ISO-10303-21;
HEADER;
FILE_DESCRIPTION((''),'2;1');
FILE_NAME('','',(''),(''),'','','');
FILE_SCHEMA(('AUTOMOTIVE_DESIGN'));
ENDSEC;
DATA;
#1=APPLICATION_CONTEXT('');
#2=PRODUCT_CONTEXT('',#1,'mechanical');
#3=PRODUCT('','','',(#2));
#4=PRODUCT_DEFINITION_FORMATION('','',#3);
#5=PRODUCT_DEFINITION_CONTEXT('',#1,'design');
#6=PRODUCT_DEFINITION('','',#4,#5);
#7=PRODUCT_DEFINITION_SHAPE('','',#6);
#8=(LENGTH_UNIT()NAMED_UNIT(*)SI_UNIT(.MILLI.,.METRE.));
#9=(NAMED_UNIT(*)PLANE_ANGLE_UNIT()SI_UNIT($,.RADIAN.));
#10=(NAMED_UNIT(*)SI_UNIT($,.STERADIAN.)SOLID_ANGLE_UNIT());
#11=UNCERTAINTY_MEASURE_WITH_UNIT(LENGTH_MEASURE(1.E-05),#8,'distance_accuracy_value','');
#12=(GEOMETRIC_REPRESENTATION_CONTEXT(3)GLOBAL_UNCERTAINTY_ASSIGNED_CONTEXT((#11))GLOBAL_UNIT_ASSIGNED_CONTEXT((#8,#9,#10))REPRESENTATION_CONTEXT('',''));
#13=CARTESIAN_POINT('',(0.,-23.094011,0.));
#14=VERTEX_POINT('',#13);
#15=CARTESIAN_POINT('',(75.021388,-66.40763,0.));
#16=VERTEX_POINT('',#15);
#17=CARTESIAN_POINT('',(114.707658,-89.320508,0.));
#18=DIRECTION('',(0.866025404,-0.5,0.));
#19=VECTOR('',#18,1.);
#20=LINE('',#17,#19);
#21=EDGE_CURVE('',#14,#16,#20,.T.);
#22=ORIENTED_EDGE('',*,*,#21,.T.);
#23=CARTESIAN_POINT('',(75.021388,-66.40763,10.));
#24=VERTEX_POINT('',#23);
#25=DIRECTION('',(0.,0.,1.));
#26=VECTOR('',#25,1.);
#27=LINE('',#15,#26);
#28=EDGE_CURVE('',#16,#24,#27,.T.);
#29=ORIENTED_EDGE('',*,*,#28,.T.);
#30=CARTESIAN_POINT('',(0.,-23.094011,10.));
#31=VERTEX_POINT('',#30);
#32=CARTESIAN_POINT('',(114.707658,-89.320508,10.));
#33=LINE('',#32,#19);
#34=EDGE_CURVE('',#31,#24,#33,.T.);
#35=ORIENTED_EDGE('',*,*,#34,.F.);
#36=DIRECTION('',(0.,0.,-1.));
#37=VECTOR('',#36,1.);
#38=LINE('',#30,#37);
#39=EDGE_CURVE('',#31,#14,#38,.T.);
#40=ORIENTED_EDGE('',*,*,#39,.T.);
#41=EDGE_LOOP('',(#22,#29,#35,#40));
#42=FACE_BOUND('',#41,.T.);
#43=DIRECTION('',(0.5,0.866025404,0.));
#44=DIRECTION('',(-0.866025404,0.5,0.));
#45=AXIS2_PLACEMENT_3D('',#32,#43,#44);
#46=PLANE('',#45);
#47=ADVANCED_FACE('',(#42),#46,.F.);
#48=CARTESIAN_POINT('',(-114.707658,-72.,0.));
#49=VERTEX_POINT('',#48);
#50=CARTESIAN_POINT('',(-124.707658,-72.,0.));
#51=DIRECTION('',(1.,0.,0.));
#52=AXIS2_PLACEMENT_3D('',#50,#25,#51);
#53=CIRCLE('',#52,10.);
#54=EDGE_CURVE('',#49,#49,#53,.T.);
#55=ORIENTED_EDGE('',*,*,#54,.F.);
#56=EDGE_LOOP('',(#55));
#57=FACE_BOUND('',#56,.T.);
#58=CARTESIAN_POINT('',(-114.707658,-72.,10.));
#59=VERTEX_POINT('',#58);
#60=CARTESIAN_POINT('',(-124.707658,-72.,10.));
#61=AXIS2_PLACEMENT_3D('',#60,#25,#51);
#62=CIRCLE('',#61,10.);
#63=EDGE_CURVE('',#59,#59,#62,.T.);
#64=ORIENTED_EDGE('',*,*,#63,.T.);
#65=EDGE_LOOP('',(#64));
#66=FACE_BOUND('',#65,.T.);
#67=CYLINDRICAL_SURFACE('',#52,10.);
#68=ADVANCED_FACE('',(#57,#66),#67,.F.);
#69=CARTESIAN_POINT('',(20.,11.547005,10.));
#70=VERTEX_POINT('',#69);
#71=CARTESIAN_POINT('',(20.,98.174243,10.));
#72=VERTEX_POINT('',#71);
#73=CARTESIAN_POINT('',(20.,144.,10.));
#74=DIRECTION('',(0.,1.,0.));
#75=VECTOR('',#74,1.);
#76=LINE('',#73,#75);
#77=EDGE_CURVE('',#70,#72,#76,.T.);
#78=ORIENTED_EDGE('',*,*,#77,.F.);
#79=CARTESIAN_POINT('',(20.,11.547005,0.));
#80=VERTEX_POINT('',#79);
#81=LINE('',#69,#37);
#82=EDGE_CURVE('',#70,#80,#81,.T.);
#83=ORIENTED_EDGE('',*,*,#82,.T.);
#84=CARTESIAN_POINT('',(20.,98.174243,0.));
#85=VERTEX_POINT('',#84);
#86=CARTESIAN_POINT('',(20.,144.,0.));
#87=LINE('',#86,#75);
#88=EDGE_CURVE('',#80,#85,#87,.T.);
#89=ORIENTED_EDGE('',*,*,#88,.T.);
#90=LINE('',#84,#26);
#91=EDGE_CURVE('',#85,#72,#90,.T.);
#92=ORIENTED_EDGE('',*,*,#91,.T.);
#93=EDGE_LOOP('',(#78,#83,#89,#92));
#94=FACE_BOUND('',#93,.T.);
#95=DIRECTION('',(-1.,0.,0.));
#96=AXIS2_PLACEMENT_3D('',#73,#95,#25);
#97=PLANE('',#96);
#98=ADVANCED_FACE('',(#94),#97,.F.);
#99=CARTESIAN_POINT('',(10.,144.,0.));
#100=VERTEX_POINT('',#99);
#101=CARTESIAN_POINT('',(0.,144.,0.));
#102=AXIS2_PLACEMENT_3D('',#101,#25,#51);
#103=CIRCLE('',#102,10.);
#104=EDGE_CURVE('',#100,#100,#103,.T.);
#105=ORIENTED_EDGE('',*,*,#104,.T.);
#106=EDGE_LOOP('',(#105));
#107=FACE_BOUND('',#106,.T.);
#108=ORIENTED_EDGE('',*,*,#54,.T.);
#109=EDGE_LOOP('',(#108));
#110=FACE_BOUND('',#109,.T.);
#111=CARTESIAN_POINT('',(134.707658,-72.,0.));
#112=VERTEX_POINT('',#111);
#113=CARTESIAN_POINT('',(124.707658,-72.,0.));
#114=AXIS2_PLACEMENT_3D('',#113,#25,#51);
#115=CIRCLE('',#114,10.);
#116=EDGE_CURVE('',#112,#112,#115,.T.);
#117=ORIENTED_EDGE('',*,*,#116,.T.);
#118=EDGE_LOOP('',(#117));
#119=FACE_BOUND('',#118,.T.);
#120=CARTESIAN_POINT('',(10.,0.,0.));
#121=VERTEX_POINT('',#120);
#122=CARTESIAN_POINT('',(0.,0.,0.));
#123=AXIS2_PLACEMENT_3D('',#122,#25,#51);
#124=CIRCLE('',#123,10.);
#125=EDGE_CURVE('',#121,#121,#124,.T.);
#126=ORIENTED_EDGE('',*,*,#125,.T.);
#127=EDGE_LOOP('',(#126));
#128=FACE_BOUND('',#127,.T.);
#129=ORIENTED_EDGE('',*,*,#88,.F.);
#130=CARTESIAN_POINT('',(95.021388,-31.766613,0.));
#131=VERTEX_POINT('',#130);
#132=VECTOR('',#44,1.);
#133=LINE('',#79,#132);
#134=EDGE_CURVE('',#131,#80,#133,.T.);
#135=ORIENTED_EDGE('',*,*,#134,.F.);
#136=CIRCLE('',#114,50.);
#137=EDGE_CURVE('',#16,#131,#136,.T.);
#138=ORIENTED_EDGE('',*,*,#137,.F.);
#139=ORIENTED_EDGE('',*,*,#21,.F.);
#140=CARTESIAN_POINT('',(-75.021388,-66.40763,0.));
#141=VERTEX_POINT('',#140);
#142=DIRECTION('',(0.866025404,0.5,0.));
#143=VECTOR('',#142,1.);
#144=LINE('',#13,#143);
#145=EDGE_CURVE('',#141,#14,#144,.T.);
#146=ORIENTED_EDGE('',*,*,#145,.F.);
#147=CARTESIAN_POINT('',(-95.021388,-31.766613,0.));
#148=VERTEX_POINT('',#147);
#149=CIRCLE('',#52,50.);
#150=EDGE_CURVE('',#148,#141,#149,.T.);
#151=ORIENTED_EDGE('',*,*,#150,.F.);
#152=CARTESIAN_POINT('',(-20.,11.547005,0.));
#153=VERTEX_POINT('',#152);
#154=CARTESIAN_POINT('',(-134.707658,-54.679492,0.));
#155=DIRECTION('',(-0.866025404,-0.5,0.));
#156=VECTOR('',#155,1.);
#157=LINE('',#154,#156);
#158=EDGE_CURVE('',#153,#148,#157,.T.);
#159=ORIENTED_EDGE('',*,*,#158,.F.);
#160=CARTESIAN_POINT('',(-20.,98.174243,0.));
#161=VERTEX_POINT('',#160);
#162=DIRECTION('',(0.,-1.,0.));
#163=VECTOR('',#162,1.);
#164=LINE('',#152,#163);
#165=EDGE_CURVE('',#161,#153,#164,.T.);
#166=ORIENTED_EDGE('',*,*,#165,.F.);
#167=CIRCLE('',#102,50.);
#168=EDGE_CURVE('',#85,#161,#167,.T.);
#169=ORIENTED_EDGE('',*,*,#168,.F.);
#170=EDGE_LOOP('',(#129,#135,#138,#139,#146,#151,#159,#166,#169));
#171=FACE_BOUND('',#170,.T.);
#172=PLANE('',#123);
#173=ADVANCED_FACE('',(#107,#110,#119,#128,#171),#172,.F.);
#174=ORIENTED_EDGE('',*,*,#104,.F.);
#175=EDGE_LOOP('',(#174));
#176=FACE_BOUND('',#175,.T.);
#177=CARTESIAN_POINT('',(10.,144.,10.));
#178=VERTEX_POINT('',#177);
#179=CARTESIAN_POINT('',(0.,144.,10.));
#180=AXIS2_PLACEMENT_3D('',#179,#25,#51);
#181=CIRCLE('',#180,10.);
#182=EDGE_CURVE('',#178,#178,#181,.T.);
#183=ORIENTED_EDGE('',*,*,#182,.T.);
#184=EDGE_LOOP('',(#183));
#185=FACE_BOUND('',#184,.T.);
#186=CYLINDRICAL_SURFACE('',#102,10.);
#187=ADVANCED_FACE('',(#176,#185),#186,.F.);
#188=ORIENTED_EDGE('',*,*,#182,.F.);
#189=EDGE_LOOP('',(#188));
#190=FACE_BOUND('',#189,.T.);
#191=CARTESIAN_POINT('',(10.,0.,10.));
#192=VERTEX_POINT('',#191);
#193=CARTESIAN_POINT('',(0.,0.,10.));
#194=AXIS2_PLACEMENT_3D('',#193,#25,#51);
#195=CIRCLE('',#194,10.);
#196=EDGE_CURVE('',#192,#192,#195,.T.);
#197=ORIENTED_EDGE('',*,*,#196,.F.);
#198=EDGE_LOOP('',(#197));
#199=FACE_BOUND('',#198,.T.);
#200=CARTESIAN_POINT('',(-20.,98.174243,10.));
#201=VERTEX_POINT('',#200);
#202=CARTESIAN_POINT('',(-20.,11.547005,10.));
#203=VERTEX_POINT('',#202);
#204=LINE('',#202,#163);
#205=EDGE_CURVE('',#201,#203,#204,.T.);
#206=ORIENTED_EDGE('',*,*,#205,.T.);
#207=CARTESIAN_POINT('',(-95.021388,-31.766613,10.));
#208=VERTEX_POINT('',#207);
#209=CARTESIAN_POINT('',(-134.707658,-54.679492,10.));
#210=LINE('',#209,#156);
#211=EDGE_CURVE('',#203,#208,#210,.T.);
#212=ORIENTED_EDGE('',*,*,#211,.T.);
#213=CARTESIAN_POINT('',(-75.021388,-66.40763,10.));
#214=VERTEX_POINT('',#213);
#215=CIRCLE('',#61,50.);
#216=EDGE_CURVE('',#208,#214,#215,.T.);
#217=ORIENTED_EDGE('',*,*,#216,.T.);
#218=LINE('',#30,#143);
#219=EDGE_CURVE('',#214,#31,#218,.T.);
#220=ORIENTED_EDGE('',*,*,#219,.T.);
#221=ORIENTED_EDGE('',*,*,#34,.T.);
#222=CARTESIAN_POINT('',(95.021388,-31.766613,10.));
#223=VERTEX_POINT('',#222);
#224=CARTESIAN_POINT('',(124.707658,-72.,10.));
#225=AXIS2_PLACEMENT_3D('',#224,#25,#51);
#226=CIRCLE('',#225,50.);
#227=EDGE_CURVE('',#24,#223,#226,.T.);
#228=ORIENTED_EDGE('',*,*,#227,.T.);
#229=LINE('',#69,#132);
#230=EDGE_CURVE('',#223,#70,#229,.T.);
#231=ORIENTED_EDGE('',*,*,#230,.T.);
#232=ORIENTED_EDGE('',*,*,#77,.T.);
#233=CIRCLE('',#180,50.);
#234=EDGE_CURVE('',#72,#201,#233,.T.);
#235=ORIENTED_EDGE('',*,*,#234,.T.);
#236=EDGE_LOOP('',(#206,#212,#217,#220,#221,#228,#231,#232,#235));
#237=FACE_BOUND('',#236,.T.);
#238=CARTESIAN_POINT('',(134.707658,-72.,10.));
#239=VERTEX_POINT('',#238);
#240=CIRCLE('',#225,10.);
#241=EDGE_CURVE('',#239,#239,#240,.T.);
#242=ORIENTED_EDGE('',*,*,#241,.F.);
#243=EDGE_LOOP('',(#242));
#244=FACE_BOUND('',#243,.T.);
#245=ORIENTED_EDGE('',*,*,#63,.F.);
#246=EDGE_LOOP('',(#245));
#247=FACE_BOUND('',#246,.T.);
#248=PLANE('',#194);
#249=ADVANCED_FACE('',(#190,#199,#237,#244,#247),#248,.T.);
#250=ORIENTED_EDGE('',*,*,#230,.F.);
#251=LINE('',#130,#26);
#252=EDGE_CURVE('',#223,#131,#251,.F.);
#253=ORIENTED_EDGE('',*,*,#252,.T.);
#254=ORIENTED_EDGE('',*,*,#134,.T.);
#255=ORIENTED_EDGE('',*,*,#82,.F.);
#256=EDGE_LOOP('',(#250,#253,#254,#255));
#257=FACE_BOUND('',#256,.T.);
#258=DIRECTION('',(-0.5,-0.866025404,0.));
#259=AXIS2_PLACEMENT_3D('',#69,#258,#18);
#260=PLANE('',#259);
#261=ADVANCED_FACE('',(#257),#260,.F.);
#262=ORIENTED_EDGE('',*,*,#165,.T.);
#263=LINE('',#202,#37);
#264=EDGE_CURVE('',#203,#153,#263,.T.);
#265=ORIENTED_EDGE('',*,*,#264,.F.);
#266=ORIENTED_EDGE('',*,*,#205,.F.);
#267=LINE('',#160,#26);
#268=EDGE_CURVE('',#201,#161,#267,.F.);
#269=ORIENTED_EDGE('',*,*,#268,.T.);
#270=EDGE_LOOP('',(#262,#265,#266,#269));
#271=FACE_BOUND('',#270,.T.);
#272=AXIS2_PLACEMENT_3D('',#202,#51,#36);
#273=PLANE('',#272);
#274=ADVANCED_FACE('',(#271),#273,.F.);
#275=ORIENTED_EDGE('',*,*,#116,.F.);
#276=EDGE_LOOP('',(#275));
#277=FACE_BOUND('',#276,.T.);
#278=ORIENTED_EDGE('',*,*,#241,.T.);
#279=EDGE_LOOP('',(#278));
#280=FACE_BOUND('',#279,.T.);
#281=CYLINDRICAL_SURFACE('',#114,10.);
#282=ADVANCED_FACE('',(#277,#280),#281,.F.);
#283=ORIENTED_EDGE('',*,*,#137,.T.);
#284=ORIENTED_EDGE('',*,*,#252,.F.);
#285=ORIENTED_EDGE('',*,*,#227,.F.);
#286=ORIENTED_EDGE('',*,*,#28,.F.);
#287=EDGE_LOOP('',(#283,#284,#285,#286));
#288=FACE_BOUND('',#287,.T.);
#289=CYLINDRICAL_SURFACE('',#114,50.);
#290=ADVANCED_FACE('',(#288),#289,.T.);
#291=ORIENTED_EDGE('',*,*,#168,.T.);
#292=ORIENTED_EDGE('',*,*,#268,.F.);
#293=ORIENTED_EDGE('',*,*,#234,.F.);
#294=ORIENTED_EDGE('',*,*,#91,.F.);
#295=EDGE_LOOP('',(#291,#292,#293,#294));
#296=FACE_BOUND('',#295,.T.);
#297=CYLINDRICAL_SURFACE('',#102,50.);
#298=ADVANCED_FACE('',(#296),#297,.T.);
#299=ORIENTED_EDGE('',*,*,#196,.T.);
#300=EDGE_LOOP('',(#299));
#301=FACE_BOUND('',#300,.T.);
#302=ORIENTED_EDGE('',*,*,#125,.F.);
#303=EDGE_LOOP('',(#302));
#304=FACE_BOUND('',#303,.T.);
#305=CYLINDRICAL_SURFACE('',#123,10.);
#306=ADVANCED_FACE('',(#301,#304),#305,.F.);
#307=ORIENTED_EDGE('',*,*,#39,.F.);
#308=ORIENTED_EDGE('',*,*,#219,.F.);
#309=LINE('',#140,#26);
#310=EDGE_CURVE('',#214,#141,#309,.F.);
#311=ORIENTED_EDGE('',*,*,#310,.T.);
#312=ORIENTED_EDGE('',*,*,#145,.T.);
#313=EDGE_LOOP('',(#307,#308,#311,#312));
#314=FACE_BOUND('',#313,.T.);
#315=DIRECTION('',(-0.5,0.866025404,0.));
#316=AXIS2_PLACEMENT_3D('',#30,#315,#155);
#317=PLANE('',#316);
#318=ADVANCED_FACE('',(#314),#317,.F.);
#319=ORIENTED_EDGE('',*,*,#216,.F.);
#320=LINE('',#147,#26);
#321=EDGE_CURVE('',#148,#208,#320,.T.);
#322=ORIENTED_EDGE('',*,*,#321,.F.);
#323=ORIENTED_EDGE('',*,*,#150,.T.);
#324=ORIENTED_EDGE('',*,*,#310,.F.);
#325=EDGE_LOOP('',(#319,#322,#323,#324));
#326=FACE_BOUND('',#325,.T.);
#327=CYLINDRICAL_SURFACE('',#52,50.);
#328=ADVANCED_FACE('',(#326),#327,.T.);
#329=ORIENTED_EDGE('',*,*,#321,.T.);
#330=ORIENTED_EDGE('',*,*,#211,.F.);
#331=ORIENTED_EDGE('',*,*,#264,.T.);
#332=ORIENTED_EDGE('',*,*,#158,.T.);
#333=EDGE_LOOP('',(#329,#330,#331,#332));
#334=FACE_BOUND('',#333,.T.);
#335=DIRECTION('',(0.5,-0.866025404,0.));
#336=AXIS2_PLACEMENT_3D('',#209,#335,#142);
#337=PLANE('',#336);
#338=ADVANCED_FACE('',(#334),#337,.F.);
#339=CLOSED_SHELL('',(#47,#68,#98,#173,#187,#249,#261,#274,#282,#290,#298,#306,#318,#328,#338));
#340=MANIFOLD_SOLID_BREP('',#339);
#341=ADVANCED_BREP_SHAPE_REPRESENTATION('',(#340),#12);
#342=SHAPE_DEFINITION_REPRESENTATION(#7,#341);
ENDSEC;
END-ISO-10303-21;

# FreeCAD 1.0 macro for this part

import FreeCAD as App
import Part
import Sketcher
Q = App.Units.Quantity

doc = App.newDocument("Part")
body = doc.addObject("PartDesign::Body", "Body")

sketch1 = body.newObject("Sketcher::SketchObject", "Sketch")
sketch1.AttachmentSupport = (doc.getObject("XY_Plane"), [""])
sketch1.MapMode = "FlatFace"
sketch1.addGeometry([
    Part.LineSegment(App.Vector(20, 144, 0), App.Vector(-20, 144, 0)),
    Part.LineSegment(App.Vector(-20, 144, 0), App.Vector(-20, 12, 0)),
    Part.LineSegment(App.Vector(-20, 12, 0), App.Vector(-135, -55, 0)),
    Part.LineSegment(App.Vector(-135, -55, 0), App.Vector(-115, -89, 0)),
    Part.LineSegment(App.Vector(-115, -89, 0), App.Vector(0, -23, 0)),
    Part.LineSegment(App.Vector(0, -23, 0), App.Vector(115, -89, 0)),
    Part.LineSegment(App.Vector(115, -89, 0), App.Vector(135, -55, 0)),
    Part.LineSegment(App.Vector(135, -55, 0), App.Vector(20, 12, 0)),
    Part.LineSegment(App.Vector(20, 12, 0), App.Vector(20, 144, 0)),
], False)
sketch1.addConstraint([
    Sketcher.Constraint("Coincident", 0, 2, 1, 1),
    Sketcher.Constraint("Coincident", 1, 2, 2, 1),
    Sketcher.Constraint("Coincident", 2, 2, 3, 1),
    Sketcher.Constraint("Coincident", 3, 2, 4, 1),
    Sketcher.Constraint("Coincident", 4, 2, 5, 1),
    Sketcher.Constraint("Coincident", 5, 2, 6, 1),
    Sketcher.Constraint("Coincident", 6, 2, 7, 1),
    Sketcher.Constraint("Coincident", 7, 2, 8, 1),
    Sketcher.Constraint("Coincident", 8, 2, 0, 1),
    Sketcher.Constraint("Horizontal", 0),
    Sketcher.Constraint("Vertical", 1),
    Sketcher.Constraint("Vertical", 8),
    Sketcher.Constraint("Symmetric", 3, 2, 5, 2, -2),
    Sketcher.Constraint("Symmetric", 2, 2, 6, 2, -2),
    Sketcher.Constraint("Symmetric", 1, 2, 7, 2, -2),
    Sketcher.Constraint("PointOnObject", 4, 2, -2),
    Sketcher.Constraint("Perpendicular", 2, 3),
    Sketcher.Constraint("Perpendicular", 3, 4),
    Sketcher.Constraint("Equal", 2, 4),
    Sketcher.Constraint("DistanceX", 0, 2, 0, 1, 40.0),
    Sketcher.Constraint("Angle", 2, Q("-150 deg")),
    Sketcher.Constraint("DistanceY", -1, 1, 0, 2, 144.0),
    Sketcher.Constraint("DistanceY", 1, 2, 1, 1, 132.452995),
    Sketcher.Constraint("DistanceX", 2, 2, -1, 1, 134.707658),
])
pad1 = body.newObject("PartDesign::Pad", "Pad")
pad1.Profile = sketch1
pad1.Length = 10

sketch2 = body.newObject("Sketcher::SketchObject", "Sketch001")
sketch2.AttachmentSupport = (doc.getObject("XY_Plane"), [""])
sketch2.MapMode = "FlatFace"
sketch2.AttachmentOffset = App.Placement(App.Vector(0, 0, 10), App.Rotation())
sketch2.addGeometry([
    Part.Circle(App.Vector(-125, -72, 0), App.Vector(0, 0, 1), 50),
    Part.Circle(App.Vector(0, 144, 0), App.Vector(0, 0, 1), 50),
    Part.Circle(App.Vector(125, -72, 0), App.Vector(0, 0, 1), 50),
], False)
sketch2.addConstraint([
    Sketcher.Constraint("Equal", 0, 1),
    Sketcher.Constraint("Equal", 1, 2),
    Sketcher.Constraint("Symmetric", 0, 3, 2, 3, -2),
    Sketcher.Constraint("PointOnObject", 1, 3, -2),
    Sketcher.Constraint("Diameter", 0, 100.0),
    Sketcher.Constraint("DistanceY", 0, 3, -1, 1, 72.0),
    Sketcher.Constraint("DistanceY", -1, 1, 1, 3, 144.0),
    Sketcher.Constraint("DistanceX", 0, 3, -1, 1, 124.707658),
])
pad2 = body.newObject("PartDesign::Pad", "Pad001")
pad2.Profile = sketch2
pad2.Length = 10
pad2.Reversed = True

sketch3 = body.newObject("Sketcher::SketchObject", "Sketch002")
sketch3.AttachmentSupport = (doc.getObject("XY_Plane"), [""])
sketch3.MapMode = "FlatFace"
sketch3.AttachmentOffset = App.Placement(App.Vector(0, 0, 10), App.Rotation())
sketch3.addGeometry([
    Part.Circle(App.Vector(0, 144, 0), App.Vector(0, 0, 1), 10),
    Part.Circle(App.Vector(125, -72, 0), App.Vector(0, 0, 1), 10),
    Part.Circle(App.Vector(-125, -72, 0), App.Vector(0, 0, 1), 10),
], False)
sketch3.addConstraint([
    Sketcher.Constraint("Equal", 0, 1),
    Sketcher.Constraint("Equal", 1, 2),
    Sketcher.Constraint("Symmetric", 1, 3, 2, 3, -2),
    Sketcher.Constraint("PointOnObject", 0, 3, -2),
    Sketcher.Constraint("Diameter", 0, 20.0),
    Sketcher.Constraint("DistanceY", -1, 1, 0, 3, 144.0),
    Sketcher.Constraint("DistanceY", 1, 3, -1, 1, 72.0),
    Sketcher.Constraint("DistanceX", -1, 1, 1, 3, 124.707658),
])
pad3 = body.newObject("PartDesign::Pad", "Pad002")
pad3.Profile = sketch3
pad3.Length = 90

sketch4 = body.newObject("Sketcher::SketchObject", "Sketch003")
sketch4.AttachmentSupport = (doc.getObject("XY_Plane"), [""])
sketch4.MapMode = "FlatFace"
sketch4.AttachmentOffset = App.Placement(App.Vector(0, 0, 70), App.Rotation())
sketch4.addGeometry(Part.Circle(App.Vector(0, 144, 0), App.Vector(0, 0, 1), 10), False)
sketch4.addConstraint([
    Sketcher.Constraint("PointOnObject", 0, 3, -2),
    Sketcher.Constraint("Diameter", 0, 20.0),
    Sketcher.Constraint("DistanceY", -1, 1, 0, 3, 144.0),
])
pocket1 = body.newObject("PartDesign::Pocket", "Pocket")
pocket1.Profile = sketch4
pocket1.Length = 30
pocket1.Reversed = True

sketch5 = body.newObject("Sketcher::SketchObject", "Sketch004")
sketch5.AttachmentSupport = (doc.getObject("XY_Plane"), [""])
sketch5.MapMode = "FlatFace"
sketch5.AttachmentOffset = App.Placement(App.Vector(0, 0, 10), App.Rotation())
sketch5.addGeometry(Part.Circle(App.Vector(0, 0, 0), App.Vector(0, 0, 1), 13), False)
sketch5.addConstraint([
    Sketcher.Constraint("Coincident", 0, 3, -1, 1),
    Sketcher.Constraint("Diameter", 0, 26.0),
])
pocket2 = body.newObject("PartDesign::Pocket", "Pocket001")
pocket2.Profile = sketch5
pocket2.Length = 10

sketch6 = body.newObject("Sketcher::SketchObject", "Sketch005")
sketch6.AttachmentSupport = (doc.getObject("XY_Plane"), [""])
sketch6.MapMode = "FlatFace"
sketch6.AttachmentOffset = App.Placement(App.Vector(0, 0, 70), App.Rotation())
sketch6.addGeometry(Part.Circle(App.Vector(0, 144, 0), App.Vector(0, 0, 1), 10), False)
sketch6.addConstraint([
    Sketcher.Constraint("PointOnObject", 0, 3, -2),
    Sketcher.Constraint("Diameter", 0, 20.0),
    Sketcher.Constraint("DistanceY", -1, 1, 0, 3, 144.0),
])
pad4 = body.newObject("PartDesign::Pad", "Pad003")
pad4.Profile = sketch6
pad4.Length = 30

sketch7 = body.newObject("Sketcher::SketchObject", "Sketch006")
sketch7.AttachmentSupport = (doc.getObject("XY_Plane"), [""])
sketch7.MapMode = "FlatFace"
sketch7.AttachmentOffset = App.Placement(App.Vector(0, 0, 10), App.Rotation())
sketch7.addGeometry(Part.Circle(App.Vector(0, 0, 0), App.Vector(0, 0, 1), 20), False)
sketch7.addConstraint([
    Sketcher.Constraint("Coincident", 0, 3, -1, 1),
    Sketcher.Constraint("Diameter", 0, 40.738338),
])
pad5 = body.newObject("PartDesign::Pad", "Pad004")
pad5.Profile = sketch7
pad5.Length = 10
pad5.Reversed = True

sketch8 = body.newObject("Sketcher::SketchObject", "Sketch007")
sketch8.AttachmentSupport = (doc.getObject("XY_Plane"), [""])
sketch8.MapMode = "FlatFace"
sketch8.addGeometry([
    Part.Circle(App.Vector(-125, -72, 0), App.Vector(0, 0, 1), 10),
    Part.Circle(App.Vector(0, 144, 0), App.Vector(0, 0, 1), 10),
    Part.Circle(App.Vector(125, -72, 0), App.Vector(0, 0, 1), 10),
], False)
sketch8.addConstraint([
    Sketcher.Constraint("Equal", 0, 1),
    Sketcher.Constraint("Equal", 1, 2),
    Sketcher.Constraint("Symmetric", 0, 3, 2, 3, -2),
    Sketcher.Constraint("PointOnObject", 1, 3, -2),
    Sketcher.Constraint("Diameter", 0, 20.0),
    Sketcher.Constraint("DistanceY", 0, 3, -1, 1, 72.0),
    Sketcher.Constraint("DistanceY", -1, 1, 1, 3, 144.0),
    Sketcher.Constraint("DistanceX", 0, 3, -1, 1, 124.707658),
])
pocket3 = body.newObject("PartDesign::Pocket", "Pocket002")
pocket3.Profile = sketch8
pocket3.Length = 100
pocket3.Reversed = True

sketch9 = body.newObject("Sketcher::SketchObject", "Sketch008")
sketch9.AttachmentSupport = (doc.getObject("XY_Plane"), [""])
sketch9.MapMode = "FlatFace"
sketch9.AttachmentOffset = App.Placement(App.Vector(0, 0, 10), App.Rotation())
sketch9.addGeometry(Part.Circle(App.Vector(0, 0, 0), App.Vector(0, 0, 1), 10), False)
sketch9.addConstraint([
    Sketcher.Constraint("Coincident", 0, 3, -1, 1),
    Sketcher.Constraint("Diameter", 0, 20.0),
])
pocket4 = body.newObject("PartDesign::Pocket", "Pocket003")
pocket4.Profile = sketch9
pocket4.Length = 10

doc.recompute()
